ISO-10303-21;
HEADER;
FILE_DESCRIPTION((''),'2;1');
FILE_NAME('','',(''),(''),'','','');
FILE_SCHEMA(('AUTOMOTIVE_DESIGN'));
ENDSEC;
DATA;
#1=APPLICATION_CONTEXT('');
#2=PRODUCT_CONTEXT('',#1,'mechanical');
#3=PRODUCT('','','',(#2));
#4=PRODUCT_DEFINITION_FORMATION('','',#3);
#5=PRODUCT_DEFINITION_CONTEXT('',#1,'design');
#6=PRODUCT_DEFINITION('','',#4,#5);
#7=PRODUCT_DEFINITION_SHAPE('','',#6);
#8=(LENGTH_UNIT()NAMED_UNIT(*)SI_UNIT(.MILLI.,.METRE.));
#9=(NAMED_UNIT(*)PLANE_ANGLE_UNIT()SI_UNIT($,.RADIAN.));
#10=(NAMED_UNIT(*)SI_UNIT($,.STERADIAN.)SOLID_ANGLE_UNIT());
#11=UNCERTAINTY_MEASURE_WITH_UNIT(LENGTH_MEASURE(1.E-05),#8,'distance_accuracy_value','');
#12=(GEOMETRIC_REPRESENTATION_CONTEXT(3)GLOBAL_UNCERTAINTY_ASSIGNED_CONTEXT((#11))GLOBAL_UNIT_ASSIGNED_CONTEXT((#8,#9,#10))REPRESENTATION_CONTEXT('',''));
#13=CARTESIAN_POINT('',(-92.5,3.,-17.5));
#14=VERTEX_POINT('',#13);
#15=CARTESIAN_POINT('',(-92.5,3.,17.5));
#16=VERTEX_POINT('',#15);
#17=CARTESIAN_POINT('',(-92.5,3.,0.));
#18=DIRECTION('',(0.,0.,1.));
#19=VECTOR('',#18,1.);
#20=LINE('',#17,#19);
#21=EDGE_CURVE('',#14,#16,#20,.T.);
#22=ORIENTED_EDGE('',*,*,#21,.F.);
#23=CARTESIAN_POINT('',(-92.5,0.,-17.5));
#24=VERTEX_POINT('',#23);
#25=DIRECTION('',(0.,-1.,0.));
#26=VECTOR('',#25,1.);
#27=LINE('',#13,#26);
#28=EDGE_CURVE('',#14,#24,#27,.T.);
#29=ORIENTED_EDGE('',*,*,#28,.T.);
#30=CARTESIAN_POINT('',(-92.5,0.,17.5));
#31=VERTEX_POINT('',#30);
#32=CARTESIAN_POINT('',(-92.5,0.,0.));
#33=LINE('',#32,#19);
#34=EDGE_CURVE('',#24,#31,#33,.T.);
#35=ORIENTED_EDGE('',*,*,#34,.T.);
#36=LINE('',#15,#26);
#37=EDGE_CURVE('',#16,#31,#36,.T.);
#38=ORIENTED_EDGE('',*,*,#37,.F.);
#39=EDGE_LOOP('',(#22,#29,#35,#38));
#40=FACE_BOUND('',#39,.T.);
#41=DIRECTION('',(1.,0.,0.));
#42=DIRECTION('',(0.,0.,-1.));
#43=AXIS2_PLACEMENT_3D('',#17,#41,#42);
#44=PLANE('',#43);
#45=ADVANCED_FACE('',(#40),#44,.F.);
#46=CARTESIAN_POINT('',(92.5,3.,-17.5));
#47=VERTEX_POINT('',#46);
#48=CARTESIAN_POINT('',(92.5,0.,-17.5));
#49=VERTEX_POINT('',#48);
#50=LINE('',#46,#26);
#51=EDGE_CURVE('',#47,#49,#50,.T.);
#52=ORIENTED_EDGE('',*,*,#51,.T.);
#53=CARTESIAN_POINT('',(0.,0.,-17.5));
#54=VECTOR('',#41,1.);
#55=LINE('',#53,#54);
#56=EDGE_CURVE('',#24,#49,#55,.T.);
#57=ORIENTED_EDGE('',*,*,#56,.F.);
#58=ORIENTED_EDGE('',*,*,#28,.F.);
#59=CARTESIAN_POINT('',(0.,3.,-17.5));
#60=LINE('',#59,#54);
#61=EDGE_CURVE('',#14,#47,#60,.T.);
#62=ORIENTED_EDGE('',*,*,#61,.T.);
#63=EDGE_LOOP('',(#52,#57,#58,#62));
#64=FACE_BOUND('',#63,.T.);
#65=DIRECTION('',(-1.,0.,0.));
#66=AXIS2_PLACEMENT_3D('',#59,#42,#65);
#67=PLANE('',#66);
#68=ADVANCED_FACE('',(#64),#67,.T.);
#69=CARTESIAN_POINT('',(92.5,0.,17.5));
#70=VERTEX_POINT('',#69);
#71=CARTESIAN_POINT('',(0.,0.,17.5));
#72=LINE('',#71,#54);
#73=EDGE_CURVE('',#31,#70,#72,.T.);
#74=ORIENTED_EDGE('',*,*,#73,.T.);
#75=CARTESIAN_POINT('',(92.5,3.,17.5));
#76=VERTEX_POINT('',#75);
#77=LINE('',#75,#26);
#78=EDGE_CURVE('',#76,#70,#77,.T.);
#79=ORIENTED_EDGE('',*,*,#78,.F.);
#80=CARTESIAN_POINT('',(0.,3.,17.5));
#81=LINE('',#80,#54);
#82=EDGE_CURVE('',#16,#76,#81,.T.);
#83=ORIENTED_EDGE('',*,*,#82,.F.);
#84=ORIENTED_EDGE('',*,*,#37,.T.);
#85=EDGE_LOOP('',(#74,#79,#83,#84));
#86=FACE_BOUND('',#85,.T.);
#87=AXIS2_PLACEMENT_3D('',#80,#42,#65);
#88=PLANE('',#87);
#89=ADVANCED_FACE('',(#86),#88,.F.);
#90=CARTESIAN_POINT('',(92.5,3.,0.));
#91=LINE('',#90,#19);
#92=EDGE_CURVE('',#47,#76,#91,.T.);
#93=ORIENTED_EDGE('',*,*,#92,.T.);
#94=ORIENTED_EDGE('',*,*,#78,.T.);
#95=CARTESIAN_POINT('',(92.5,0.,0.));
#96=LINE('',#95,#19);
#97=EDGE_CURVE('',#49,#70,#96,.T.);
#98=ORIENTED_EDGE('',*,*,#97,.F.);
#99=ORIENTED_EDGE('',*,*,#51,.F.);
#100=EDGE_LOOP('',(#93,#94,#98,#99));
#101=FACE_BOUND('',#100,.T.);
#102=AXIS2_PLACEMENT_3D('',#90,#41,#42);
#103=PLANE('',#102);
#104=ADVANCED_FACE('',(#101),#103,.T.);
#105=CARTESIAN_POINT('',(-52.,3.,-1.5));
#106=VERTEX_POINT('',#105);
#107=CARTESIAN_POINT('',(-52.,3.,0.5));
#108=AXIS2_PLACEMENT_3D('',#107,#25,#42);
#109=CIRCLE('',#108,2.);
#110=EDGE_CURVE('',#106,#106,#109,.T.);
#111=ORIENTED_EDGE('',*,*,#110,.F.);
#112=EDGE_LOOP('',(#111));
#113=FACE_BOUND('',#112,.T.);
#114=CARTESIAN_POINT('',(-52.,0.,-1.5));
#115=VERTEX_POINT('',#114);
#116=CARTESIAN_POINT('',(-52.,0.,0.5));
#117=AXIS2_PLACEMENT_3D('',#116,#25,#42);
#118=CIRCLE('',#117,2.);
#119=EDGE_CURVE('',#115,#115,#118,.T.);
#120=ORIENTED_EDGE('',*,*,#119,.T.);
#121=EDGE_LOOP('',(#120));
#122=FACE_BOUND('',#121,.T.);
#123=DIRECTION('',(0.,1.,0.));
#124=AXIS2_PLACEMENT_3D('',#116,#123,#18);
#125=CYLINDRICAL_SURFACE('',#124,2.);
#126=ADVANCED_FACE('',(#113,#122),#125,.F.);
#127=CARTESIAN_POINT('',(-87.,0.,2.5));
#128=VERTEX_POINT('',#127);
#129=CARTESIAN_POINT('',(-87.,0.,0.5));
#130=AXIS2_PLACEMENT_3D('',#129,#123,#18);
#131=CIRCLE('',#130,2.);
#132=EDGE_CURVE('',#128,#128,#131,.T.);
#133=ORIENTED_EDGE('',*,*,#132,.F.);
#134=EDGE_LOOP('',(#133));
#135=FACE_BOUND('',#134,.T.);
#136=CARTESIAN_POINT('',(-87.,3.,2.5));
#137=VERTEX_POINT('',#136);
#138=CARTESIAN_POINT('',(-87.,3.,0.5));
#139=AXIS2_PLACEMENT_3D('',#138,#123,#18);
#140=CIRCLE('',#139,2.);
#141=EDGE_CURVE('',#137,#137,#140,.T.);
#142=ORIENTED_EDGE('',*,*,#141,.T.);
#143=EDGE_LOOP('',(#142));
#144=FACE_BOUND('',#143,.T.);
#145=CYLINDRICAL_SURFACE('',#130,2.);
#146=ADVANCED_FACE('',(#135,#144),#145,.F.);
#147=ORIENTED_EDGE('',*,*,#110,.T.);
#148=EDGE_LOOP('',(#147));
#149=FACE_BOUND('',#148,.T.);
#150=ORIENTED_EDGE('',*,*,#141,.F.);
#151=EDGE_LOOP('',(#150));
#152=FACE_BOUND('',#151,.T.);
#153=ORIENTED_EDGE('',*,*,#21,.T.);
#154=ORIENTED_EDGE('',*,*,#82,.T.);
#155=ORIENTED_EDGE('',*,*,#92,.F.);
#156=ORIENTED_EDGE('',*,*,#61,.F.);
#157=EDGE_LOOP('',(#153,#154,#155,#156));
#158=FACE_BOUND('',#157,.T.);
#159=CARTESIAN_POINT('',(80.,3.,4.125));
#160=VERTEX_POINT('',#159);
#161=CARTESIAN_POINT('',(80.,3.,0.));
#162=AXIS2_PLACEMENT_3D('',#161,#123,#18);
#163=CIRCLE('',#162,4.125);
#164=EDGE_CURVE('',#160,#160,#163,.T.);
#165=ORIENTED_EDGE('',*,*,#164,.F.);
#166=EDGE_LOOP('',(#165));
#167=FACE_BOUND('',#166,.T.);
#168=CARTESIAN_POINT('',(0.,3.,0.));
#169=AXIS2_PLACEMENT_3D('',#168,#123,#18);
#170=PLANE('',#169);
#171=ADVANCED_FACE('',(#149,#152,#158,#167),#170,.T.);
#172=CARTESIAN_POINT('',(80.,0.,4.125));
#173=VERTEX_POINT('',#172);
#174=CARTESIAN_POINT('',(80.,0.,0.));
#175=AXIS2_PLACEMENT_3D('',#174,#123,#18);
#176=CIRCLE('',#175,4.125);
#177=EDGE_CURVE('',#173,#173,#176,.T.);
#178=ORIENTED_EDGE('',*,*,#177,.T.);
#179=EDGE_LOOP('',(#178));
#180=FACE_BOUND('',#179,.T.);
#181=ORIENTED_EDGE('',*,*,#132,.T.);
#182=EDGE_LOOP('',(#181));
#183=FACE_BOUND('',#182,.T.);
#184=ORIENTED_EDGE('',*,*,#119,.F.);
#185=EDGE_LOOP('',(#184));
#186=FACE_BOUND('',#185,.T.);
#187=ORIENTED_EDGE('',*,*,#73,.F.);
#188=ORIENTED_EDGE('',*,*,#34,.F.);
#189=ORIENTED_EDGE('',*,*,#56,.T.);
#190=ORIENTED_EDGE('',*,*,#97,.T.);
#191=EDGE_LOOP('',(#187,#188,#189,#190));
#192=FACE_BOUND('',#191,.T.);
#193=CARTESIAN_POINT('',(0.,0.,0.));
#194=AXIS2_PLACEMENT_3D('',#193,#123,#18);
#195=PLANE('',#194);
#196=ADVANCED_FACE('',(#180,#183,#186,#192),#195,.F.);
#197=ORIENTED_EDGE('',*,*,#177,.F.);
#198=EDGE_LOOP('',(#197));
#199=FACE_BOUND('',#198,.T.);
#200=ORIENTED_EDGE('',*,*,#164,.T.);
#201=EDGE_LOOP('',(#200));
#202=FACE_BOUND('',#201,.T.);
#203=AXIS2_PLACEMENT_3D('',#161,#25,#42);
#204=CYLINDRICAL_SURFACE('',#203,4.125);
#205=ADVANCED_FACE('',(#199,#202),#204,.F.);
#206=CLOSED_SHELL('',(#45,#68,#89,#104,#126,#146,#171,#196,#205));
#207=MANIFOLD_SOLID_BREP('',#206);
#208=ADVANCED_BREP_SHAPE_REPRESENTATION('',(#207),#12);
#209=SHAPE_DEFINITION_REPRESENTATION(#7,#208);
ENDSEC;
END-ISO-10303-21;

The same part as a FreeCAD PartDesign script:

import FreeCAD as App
import Part
import Sketcher
from FreeCAD import Vector

doc = App.newDocument("Part")
params = doc.addObject("Spreadsheet::Sheet", "Params")
for row, (alias, value) in enumerate([
    ("sketch1_diameter", "8.25 mm"),
    ("sketch1_width", "185 mm"),
    ("sketch1_height", "35 mm"),
    ("pad1_length", "3 mm"),
    ("sketch2_diameter", "4 mm"),
], start=1):
    params.set(f"A{row}", alias)
    params.set(f"B{row}", "=" + value)
    params.setAlias(f"B{row}", alias)

body = doc.addObject("PartDesign::Body", "Body")

# Sketch on XZ plane
sketch1 = body.newObject("Sketcher::SketchObject", "Sketch")
sketch1.AttachmentSupport = (doc.getObject("XZ_Plane"), [""])
sketch1.MapMode = "FlatFace"
sketch1.addGeometry([
    Part.LineSegment(Vector(-92.5, -17.5, 0), Vector(-92.5, 17.5, 0)),  # 0
    Part.LineSegment(Vector(-92.5, 17.5, 0), Vector(92.5, 17.5, 0)),  # 1
    Part.LineSegment(Vector(92.5, 17.5, 0), Vector(92.5, -17.5, 0)),  # 2
    Part.LineSegment(Vector(92.5, -17.5, 0), Vector(-92.5, -17.5, 0)),  # 3
    Part.Circle(Vector(80, 0, 0), Vector(0, 0, 1), 4.1),  # 4
], False)
sketch1.addConstraint([
    Sketcher.Constraint("Coincident", 0, 2, 1, 1),
    Sketcher.Constraint("Coincident", 1, 2, 2, 1),
    Sketcher.Constraint("Coincident", 2, 2, 3, 1),
    Sketcher.Constraint("Coincident", 3, 2, 0, 1),
    Sketcher.Constraint("Vertical", 0),
    Sketcher.Constraint("Horizontal", 1),
    Sketcher.Constraint("Vertical", 2),
    Sketcher.Constraint("Horizontal", 3),
    Sketcher.Constraint("Symmetric", 0, 2, 2, 2, -1, 1),
    Sketcher.Constraint("PointOnObject", 4, 3, -1),
    Sketcher.Constraint("Diameter", 4, 8.25),
    Sketcher.Constraint("DistanceX", 1, 1, 1, 2, 185.0),
    Sketcher.Constraint("DistanceY", 0, 1, 0, 2, 35.0),
    Sketcher.Constraint("DistanceX", -1, 1, 4, 3, 80.0),
])
sketch1.setExpression("Constraints[10]", "Params.sketch1_diameter")
sketch1.setExpression("Constraints[11]", "Params.sketch1_width")
sketch1.setExpression("Constraints[12]", "Params.sketch1_height")
pad1 = body.newObject("PartDesign::Pad", "Pad")
pad1.Profile = sketch1
pad1.setExpression("Length", "Params.pad1_length")
pad1.Reversed = True

# Sketch on XZ plane
sketch2 = body.newObject("Sketcher::SketchObject", "Sketch001")
sketch2.AttachmentSupport = (doc.getObject("XZ_Plane"), [""])
sketch2.MapMode = "FlatFace"
sketch2.AttachmentOffset = App.Placement(Vector(0, 0, -3), App.Rotation())
sketch2.addGeometry([
    Part.Circle(Vector(-87, 0.5, 0), Vector(0, 0, 1), 2),
    Part.Circle(Vector(-52, 0.5, 0), Vector(0, 0, 1), 2),
], False)
sketch2.addConstraint([
    Sketcher.Constraint("Equal", 0, 1),
    Sketcher.Constraint("Horizontal", 0, 3, 1, 3),
    Sketcher.Constraint("Diameter", 0, 4.0),
    Sketcher.Constraint("DistanceX", 0, 3, -1, 1, 87.0),
    Sketcher.Constraint("DistanceX", 1, 3, -1, 1, 52.0),
    Sketcher.Constraint("DistanceY", -1, 1, 0, 3, 0.5),
])
sketch2.setExpression("Constraints[2]", "Params.sketch2_diameter")
pocket1 = body.newObject("PartDesign::Pocket", "Pocket")
pocket1.Profile = sketch2
pocket1.Type = "ThroughAll"
pocket1.Reversed = True

doc.recompute()
